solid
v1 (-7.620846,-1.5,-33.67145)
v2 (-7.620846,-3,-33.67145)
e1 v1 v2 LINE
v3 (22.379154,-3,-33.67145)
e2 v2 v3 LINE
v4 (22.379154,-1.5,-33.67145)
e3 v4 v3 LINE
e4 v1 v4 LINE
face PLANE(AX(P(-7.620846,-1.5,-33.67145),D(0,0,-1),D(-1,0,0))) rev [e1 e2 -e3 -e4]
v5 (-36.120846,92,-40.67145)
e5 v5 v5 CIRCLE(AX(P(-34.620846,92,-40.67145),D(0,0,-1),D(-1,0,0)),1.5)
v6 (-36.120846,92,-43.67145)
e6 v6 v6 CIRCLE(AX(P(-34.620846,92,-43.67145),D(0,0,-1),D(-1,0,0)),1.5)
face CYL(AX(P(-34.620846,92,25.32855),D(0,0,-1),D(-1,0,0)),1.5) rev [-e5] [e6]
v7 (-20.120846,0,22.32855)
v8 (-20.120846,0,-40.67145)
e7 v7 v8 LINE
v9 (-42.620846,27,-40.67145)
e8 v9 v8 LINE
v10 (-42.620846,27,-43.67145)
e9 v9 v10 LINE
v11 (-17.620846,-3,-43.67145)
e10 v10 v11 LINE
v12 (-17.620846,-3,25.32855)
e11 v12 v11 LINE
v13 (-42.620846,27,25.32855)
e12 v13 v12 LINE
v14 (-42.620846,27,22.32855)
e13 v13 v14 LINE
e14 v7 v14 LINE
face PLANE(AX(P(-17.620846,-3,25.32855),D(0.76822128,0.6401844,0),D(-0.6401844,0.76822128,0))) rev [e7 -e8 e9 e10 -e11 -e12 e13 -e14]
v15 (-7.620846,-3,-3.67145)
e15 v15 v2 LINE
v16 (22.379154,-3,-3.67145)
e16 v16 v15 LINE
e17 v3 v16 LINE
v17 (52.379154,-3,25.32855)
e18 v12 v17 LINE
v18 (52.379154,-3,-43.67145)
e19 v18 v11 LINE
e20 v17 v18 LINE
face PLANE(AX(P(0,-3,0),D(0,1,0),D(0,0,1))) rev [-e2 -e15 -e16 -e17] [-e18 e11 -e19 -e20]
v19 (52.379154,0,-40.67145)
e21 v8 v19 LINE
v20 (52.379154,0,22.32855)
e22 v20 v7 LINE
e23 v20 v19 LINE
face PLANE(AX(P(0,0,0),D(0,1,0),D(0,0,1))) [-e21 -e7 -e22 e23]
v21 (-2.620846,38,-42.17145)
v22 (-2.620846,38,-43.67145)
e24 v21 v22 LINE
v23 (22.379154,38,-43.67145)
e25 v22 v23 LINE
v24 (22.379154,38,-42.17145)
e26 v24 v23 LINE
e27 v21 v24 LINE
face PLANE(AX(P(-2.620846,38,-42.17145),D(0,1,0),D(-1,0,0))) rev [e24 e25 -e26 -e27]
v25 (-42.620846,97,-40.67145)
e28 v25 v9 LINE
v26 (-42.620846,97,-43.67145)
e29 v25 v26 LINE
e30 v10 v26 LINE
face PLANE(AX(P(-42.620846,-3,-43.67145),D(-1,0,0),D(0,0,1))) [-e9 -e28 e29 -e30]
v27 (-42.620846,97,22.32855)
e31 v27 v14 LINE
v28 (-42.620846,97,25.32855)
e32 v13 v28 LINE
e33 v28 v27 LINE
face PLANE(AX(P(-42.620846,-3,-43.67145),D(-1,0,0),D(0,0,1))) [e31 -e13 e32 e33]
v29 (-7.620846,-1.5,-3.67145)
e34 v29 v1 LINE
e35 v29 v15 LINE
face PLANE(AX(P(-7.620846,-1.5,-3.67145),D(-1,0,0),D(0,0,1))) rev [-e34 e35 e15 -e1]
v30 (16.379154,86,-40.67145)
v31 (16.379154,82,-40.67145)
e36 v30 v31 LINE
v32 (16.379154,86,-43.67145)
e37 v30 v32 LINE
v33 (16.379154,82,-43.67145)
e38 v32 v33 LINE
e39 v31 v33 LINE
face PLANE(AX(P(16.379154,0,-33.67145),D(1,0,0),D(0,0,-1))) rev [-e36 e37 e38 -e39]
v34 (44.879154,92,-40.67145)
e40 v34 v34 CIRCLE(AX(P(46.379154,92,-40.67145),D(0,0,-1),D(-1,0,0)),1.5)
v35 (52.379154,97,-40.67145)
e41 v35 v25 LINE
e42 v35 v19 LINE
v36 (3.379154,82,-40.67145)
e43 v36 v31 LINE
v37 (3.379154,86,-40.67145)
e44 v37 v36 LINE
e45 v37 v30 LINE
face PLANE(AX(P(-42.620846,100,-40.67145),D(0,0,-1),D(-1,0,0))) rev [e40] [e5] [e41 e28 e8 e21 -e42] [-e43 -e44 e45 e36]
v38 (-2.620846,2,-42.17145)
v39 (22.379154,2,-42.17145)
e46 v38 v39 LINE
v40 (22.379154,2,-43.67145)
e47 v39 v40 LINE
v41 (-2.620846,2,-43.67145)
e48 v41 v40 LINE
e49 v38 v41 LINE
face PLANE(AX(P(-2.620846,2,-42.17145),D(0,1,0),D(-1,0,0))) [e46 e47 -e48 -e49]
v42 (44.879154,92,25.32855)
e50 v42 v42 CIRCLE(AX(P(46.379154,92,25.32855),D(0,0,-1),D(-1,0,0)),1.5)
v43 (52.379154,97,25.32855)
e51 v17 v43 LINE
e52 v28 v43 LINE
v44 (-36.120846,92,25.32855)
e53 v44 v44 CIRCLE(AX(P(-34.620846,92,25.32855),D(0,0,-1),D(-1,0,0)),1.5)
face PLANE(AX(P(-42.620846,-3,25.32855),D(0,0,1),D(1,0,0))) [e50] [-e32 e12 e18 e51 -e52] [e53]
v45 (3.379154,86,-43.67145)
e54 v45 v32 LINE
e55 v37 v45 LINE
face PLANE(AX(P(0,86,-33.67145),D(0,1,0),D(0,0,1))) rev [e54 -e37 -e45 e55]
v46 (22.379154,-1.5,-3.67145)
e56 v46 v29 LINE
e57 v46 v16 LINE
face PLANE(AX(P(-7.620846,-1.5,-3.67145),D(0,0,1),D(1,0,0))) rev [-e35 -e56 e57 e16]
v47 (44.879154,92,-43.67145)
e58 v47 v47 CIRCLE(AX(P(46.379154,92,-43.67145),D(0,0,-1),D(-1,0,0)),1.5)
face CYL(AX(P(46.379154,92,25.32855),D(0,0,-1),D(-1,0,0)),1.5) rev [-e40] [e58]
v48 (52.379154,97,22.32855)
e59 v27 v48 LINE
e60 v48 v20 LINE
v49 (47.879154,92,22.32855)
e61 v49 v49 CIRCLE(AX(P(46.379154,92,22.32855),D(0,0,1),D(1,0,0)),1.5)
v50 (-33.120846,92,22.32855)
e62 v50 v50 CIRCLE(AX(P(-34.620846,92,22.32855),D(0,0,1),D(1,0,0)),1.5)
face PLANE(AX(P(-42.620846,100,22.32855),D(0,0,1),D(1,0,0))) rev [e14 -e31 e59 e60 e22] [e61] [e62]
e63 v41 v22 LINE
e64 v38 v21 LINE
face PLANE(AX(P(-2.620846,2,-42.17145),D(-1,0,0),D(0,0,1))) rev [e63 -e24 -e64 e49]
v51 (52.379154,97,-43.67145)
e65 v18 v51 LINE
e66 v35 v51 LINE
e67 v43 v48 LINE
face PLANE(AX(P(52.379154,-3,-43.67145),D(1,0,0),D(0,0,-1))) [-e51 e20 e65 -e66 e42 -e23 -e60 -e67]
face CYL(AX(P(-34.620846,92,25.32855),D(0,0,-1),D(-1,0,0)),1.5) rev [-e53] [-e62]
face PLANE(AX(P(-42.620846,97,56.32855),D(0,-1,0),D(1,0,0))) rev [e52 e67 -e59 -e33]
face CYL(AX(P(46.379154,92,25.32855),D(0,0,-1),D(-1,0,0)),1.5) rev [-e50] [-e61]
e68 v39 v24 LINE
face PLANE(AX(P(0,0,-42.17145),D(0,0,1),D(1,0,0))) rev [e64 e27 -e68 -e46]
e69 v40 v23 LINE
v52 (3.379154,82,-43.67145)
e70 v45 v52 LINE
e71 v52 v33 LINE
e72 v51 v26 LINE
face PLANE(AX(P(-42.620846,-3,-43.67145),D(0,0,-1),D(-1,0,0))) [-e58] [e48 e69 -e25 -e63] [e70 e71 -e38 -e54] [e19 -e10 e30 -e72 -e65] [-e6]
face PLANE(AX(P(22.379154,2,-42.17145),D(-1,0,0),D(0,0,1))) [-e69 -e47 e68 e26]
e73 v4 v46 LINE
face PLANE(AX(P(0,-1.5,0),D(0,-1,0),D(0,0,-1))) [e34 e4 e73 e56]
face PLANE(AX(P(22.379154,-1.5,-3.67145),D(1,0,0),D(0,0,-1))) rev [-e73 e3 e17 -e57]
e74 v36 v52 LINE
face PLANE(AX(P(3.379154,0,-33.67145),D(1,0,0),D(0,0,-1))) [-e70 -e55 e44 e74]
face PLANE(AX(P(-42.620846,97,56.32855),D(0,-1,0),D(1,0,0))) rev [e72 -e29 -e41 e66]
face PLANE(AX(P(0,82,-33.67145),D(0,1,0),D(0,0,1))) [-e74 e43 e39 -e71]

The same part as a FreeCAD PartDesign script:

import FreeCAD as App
import Part
import Sketcher
from FreeCAD import Vector


def add_polygon(sketch, points):
    """Adds a closed chain of lines whose ends are joined by coincident constraints."""
    first, n = sketch.GeometryCount, len(points)
    for a, b in zip(points, points[1:] + points[:1]):
        sketch.addGeometry(Part.LineSegment(App.Vector(*a, 0), App.Vector(*b, 0)), False)
    for i in range(n):
        sketch.addConstraint(Sketcher.Constraint("Coincident", first + i, 2, first + (i + 1) % n, 1))

doc = App.newDocument("Part")
body = doc.addObject("PartDesign::Body", "Body")

# Sketch on XZ plane
sketch1 = body.newObject("Sketcher::SketchObject", "Sketch")
sketch1.AttachmentSupport = (doc.getObject("XZ_Plane"), [""])
sketch1.MapMode = "FlatFace"
add_polygon(sketch1, [(-43, -44), (-43, 25), (52, 25), (52, -44)])  # lines 0-3
sketch1.addConstraint([
    Sketcher.Constraint("Vertical", 0),
    Sketcher.Constraint("Horizontal", 1),
    Sketcher.Constraint("Vertical", 2),
    Sketcher.Constraint("Horizontal", 3),
    Sketcher.Constraint("DistanceX", 1, 1, 1, 2, 95.0),
    Sketcher.Constraint("DistanceY", 0, 1, 0, 2, 69.0),
    Sketcher.Constraint("DistanceY", -1, 1, 0, 2, 25.32855),
    Sketcher.Constraint("DistanceX", 0, 2, -1, 1, 42.620846),
])
pad1 = body.newObject("PartDesign::Pad", "Pad")
pad1.Profile = sketch1
pad1.Length = 3

# Sketch on XZ plane
sketch2 = body.newObject("Sketcher::SketchObject", "Sketch001")
sketch2.AttachmentSupport = (doc.getObject("XZ_Plane"), [""])
sketch2.MapMode = "FlatFace"
add_polygon(sketch2, [(-42.6, 22.3), (-42.6, 25.3), (52.4, 25.3), (52.4, 22.3)])  # lines 0-3
sketch2.addConstraint([
    Sketcher.Constraint("Vertical", 0),
    Sketcher.Constraint("Horizontal", 1),
    Sketcher.Constraint("Vertical", 2),
    Sketcher.Constraint("Horizontal", 3),
    Sketcher.Constraint("DistanceX", 1, 1, 1, 2, 95.0),
    Sketcher.Constraint("DistanceY", 0, 1, 0, 2, 3.0),
    Sketcher.Constraint("DistanceY", -1, 1, 0, 2, 25.32855),
    Sketcher.Constraint("DistanceX", 0, 2, -1, 1, 42.620846),
])
pad2 = body.newObject("PartDesign::Pad", "Pad001")
pad2.Profile = sketch2
pad2.Length = 100
pad2.Reversed = True

# Sketch on XZ plane
sketch3 = body.newObject("Sketcher::SketchObject", "Sketch002")
sketch3.AttachmentSupport = (doc.getObject("XZ_Plane"), [""])
sketch3.MapMode = "FlatFace"
add_polygon(sketch3, [(-42.6, -43.7), (-42.6, -40.7), (52.4, -40.7), (52.4, -43.7)])  # lines 0-3
sketch3.addConstraint([
    Sketcher.Constraint("Vertical", 0),
    Sketcher.Constraint("Horizontal", 1),
    Sketcher.Constraint("Vertical", 2),
    Sketcher.Constraint("Horizontal", 3),
    Sketcher.Constraint("DistanceX", 1, 1, 1, 2, 95.0),
    Sketcher.Constraint("DistanceY", 0, 1, 0, 2, 3.0),
    Sketcher.Constraint("DistanceY", 0, 2, -1, 1, 40.67145),
    Sketcher.Constraint("DistanceX", 0, 2, -1, 1, 42.620846),
])
pad3 = body.newObject("PartDesign::Pad", "Pad002")
pad3.Profile = sketch3
pad3.Length = 100
pad3.Reversed = True

# Sketch on XY plane
sketch4 = body.newObject("Sketcher::SketchObject", "Sketch003")
sketch4.AttachmentSupport = (doc.getObject("XY_Plane"), [""])
sketch4.MapMode = "FlatFace"
sketch4.AttachmentOffset = App.Placement(Vector(0, 0, -43.67145), App.Rotation())
add_polygon(sketch4, [(52.4, 100), (52.4, 97), (-42.6, 97), (-42.6, 100)])  # lines 0-3
sketch4.addConstraint([
    Sketcher.Constraint("Vertical", 0),
    Sketcher.Constraint("Horizontal", 1),
    Sketcher.Constraint("Vertical", 2),
    Sketcher.Constraint("Horizontal", 3),
    Sketcher.Constraint("DistanceX", 1, 2, 1, 1, 95.0),
    Sketcher.Constraint("DistanceY", 0, 2, 0, 1, 3.0),
    Sketcher.Constraint("DistanceY", -1, 1, 0, 2, 97.0),
    Sketcher.Constraint("DistanceX", -1, 1, 0, 2, 52.379154),
])
pocket1 = body.newObject("PartDesign::Pocket", "Pocket")
pocket1.Profile = sketch4
pocket1.Length = 100
pocket1.Reversed = True

# Sketch on XY plane
sketch5 = body.newObject("Sketcher::SketchObject", "Sketch004")
sketch5.AttachmentSupport = (doc.getObject("XY_Plane"), [""])
sketch5.MapMode = "FlatFace"
sketch5.AttachmentOffset = App.Placement(Vector(0, 0, -43.67145), App.Rotation())
add_polygon(sketch5, [(22, 38), (22, 2), (-3, 2), (-3, 38)])  # lines 0-3
sketch5.addConstraint([
    Sketcher.Constraint("Vertical", 0),
    Sketcher.Constraint("Horizontal", 1),
    Sketcher.Constraint("Vertical", 2),
    Sketcher.Constraint("Horizontal", 3),
    Sketcher.Constraint("DistanceX", 1, 2, 1, 1, 25.0),
    Sketcher.Constraint("DistanceY", 0, 2, 0, 1, 36.0),
    Sketcher.Constraint("DistanceY", -1, 1, 0, 2, 2.0),
    Sketcher.Constraint("DistanceX", -1, 1, 0, 2, 22.379154),
])
pocket2 = body.newObject("PartDesign::Pocket", "Pocket001")
pocket2.Profile = sketch5
pocket2.Length = 1.5
pocket2.Reversed = True

# Sketch on XZ plane
sketch6 = body.newObject("Sketcher::SketchObject", "Sketch005")
sketch6.AttachmentSupport = (doc.getObject("XZ_Plane"), [""])
sketch6.MapMode = "FlatFace"
sketch6.AttachmentOffset = App.Placement(Vector(0, 0, 3), App.Rotation())
add_polygon(sketch6, [(-8, -4), (-8, -34), (22, -34), (22, -4)])  # lines 0-3
sketch6.addConstraint([
    Sketcher.Constraint("Vertical", 0),
    Sketcher.Constraint("Horizontal", 1),
    Sketcher.Constraint("Vertical", 2),
    Sketcher.Constraint("Horizontal", 3),
    Sketcher.Constraint("Equal", 3, 0),
    Sketcher.Constraint("DistanceX", 1, 1, 1, 2, 30.0),
    Sketcher.Constraint("DistanceY", 0, 2, -1, 1, 33.67145),
    Sketcher.Constraint("DistanceX", 0, 2, -1, 1, 7.620846),
])
pocket3 = body.newObject("PartDesign::Pocket", "Pocket002")
pocket3.Profile = sketch6
pocket3.Length = 1.5

# Sketch on XY plane
sketch7 = body.newObject("Sketcher::SketchObject", "Sketch006")
sketch7.AttachmentSupport = (doc.getObject("XY_Plane"), [""])
sketch7.MapMode = "FlatFace"
sketch7.AttachmentOffset = App.Placement(Vector(0, 0, -43.67145), App.Rotation())
sketch7.addGeometry([
    Part.Circle(Vector(-34.6, 92, 0), Vector(0, 0, 1), 1.5),
    Part.Circle(Vector(46.4, 92, 0), Vector(0, 0, 1), 1.5),
], False)
sketch7.addConstraint([
    Sketcher.Constraint("Equal", 0, 1),
    Sketcher.Constraint("Horizontal", 0, 3, 1, 3),
    Sketcher.Constraint("Diameter", 0, 3.0),
    Sketcher.Constraint("DistanceY", -1, 1, 0, 3, 92.0),
    Sketcher.Constraint("DistanceX", 0, 3, 1, 3, 81.0),
    Sketcher.Constraint("DistanceX", 0, 3, -1, 1, 34.620846),
])
pocket4 = body.newObject("PartDesign::Pocket", "Pocket003")
pocket4.Profile = sketch7
pocket4.Type = "ThroughAll"
pocket4.Reversed = True

# Sketch on XY plane
sketch8 = body.newObject("Sketcher::SketchObject", "Sketch007")
sketch8.AttachmentSupport = (doc.getObject("XY_Plane"), [""])
sketch8.MapMode = "FlatFace"
sketch8.AttachmentOffset = App.Placement(Vector(0, 0, -43.67145), App.Rotation())
add_polygon(sketch8, [(-18, -3), (-43, -3), (-43, 27)])  # lines 0-2
sketch8.addConstraint([
    Sketcher.Constraint("Horizontal", 0),
    Sketcher.Constraint("Vertical", 1),
    Sketcher.Constraint("DistanceX", 0, 2, 0, 1, 25.0),
    Sketcher.Constraint("DistanceY", 1, 1, 1, 2, 30.0),
    Sketcher.Constraint("DistanceY", 0, 2, -1, 1, 3.0),
    Sketcher.Constraint("DistanceX", 0, 2, -1, 1, 42.620846),
])
pocket5 = body.newObject("PartDesign::Pocket", "Pocket004")
pocket5.Profile = sketch8
pocket5.Type = "ThroughAll"
pocket5.Reversed = True

# Sketch on XY plane
sketch9 = body.newObject("Sketcher::SketchObject", "Sketch008")
sketch9.AttachmentSupport = (doc.getObject("XY_Plane"), [""])
sketch9.MapMode = "FlatFace"
sketch9.AttachmentOffset = App.Placement(Vector(0, 0, -43.67145), App.Rotation())
add_polygon(sketch9, [(16.4, 86), (16.4, 82), (3.4, 82), (3.4, 86)])  # lines 0-3
sketch9.addConstraint([
    Sketcher.Constraint("Vertical", 0),
    Sketcher.Constraint("Horizontal", 1),
    Sketcher.Constraint("Vertical", 2),
    Sketcher.Constraint("Horizontal", 3),
    Sketcher.Constraint("DistanceX", 1, 2, 1, 1, 13.0),
    Sketcher.Constraint("DistanceY", 0, 2, 0, 1, 4.0),
    Sketcher.Constraint("DistanceY", -1, 1, 0, 2, 82.0),
    Sketcher.Constraint("DistanceX", -1, 1, 0, 2, 16.379154),
])
pocket6 = body.newObject("PartDesign::Pocket", "Pocket005")
pocket6.Profile = sketch9
pocket6.Length = 10
pocket6.Reversed = True

doc.recompute()
